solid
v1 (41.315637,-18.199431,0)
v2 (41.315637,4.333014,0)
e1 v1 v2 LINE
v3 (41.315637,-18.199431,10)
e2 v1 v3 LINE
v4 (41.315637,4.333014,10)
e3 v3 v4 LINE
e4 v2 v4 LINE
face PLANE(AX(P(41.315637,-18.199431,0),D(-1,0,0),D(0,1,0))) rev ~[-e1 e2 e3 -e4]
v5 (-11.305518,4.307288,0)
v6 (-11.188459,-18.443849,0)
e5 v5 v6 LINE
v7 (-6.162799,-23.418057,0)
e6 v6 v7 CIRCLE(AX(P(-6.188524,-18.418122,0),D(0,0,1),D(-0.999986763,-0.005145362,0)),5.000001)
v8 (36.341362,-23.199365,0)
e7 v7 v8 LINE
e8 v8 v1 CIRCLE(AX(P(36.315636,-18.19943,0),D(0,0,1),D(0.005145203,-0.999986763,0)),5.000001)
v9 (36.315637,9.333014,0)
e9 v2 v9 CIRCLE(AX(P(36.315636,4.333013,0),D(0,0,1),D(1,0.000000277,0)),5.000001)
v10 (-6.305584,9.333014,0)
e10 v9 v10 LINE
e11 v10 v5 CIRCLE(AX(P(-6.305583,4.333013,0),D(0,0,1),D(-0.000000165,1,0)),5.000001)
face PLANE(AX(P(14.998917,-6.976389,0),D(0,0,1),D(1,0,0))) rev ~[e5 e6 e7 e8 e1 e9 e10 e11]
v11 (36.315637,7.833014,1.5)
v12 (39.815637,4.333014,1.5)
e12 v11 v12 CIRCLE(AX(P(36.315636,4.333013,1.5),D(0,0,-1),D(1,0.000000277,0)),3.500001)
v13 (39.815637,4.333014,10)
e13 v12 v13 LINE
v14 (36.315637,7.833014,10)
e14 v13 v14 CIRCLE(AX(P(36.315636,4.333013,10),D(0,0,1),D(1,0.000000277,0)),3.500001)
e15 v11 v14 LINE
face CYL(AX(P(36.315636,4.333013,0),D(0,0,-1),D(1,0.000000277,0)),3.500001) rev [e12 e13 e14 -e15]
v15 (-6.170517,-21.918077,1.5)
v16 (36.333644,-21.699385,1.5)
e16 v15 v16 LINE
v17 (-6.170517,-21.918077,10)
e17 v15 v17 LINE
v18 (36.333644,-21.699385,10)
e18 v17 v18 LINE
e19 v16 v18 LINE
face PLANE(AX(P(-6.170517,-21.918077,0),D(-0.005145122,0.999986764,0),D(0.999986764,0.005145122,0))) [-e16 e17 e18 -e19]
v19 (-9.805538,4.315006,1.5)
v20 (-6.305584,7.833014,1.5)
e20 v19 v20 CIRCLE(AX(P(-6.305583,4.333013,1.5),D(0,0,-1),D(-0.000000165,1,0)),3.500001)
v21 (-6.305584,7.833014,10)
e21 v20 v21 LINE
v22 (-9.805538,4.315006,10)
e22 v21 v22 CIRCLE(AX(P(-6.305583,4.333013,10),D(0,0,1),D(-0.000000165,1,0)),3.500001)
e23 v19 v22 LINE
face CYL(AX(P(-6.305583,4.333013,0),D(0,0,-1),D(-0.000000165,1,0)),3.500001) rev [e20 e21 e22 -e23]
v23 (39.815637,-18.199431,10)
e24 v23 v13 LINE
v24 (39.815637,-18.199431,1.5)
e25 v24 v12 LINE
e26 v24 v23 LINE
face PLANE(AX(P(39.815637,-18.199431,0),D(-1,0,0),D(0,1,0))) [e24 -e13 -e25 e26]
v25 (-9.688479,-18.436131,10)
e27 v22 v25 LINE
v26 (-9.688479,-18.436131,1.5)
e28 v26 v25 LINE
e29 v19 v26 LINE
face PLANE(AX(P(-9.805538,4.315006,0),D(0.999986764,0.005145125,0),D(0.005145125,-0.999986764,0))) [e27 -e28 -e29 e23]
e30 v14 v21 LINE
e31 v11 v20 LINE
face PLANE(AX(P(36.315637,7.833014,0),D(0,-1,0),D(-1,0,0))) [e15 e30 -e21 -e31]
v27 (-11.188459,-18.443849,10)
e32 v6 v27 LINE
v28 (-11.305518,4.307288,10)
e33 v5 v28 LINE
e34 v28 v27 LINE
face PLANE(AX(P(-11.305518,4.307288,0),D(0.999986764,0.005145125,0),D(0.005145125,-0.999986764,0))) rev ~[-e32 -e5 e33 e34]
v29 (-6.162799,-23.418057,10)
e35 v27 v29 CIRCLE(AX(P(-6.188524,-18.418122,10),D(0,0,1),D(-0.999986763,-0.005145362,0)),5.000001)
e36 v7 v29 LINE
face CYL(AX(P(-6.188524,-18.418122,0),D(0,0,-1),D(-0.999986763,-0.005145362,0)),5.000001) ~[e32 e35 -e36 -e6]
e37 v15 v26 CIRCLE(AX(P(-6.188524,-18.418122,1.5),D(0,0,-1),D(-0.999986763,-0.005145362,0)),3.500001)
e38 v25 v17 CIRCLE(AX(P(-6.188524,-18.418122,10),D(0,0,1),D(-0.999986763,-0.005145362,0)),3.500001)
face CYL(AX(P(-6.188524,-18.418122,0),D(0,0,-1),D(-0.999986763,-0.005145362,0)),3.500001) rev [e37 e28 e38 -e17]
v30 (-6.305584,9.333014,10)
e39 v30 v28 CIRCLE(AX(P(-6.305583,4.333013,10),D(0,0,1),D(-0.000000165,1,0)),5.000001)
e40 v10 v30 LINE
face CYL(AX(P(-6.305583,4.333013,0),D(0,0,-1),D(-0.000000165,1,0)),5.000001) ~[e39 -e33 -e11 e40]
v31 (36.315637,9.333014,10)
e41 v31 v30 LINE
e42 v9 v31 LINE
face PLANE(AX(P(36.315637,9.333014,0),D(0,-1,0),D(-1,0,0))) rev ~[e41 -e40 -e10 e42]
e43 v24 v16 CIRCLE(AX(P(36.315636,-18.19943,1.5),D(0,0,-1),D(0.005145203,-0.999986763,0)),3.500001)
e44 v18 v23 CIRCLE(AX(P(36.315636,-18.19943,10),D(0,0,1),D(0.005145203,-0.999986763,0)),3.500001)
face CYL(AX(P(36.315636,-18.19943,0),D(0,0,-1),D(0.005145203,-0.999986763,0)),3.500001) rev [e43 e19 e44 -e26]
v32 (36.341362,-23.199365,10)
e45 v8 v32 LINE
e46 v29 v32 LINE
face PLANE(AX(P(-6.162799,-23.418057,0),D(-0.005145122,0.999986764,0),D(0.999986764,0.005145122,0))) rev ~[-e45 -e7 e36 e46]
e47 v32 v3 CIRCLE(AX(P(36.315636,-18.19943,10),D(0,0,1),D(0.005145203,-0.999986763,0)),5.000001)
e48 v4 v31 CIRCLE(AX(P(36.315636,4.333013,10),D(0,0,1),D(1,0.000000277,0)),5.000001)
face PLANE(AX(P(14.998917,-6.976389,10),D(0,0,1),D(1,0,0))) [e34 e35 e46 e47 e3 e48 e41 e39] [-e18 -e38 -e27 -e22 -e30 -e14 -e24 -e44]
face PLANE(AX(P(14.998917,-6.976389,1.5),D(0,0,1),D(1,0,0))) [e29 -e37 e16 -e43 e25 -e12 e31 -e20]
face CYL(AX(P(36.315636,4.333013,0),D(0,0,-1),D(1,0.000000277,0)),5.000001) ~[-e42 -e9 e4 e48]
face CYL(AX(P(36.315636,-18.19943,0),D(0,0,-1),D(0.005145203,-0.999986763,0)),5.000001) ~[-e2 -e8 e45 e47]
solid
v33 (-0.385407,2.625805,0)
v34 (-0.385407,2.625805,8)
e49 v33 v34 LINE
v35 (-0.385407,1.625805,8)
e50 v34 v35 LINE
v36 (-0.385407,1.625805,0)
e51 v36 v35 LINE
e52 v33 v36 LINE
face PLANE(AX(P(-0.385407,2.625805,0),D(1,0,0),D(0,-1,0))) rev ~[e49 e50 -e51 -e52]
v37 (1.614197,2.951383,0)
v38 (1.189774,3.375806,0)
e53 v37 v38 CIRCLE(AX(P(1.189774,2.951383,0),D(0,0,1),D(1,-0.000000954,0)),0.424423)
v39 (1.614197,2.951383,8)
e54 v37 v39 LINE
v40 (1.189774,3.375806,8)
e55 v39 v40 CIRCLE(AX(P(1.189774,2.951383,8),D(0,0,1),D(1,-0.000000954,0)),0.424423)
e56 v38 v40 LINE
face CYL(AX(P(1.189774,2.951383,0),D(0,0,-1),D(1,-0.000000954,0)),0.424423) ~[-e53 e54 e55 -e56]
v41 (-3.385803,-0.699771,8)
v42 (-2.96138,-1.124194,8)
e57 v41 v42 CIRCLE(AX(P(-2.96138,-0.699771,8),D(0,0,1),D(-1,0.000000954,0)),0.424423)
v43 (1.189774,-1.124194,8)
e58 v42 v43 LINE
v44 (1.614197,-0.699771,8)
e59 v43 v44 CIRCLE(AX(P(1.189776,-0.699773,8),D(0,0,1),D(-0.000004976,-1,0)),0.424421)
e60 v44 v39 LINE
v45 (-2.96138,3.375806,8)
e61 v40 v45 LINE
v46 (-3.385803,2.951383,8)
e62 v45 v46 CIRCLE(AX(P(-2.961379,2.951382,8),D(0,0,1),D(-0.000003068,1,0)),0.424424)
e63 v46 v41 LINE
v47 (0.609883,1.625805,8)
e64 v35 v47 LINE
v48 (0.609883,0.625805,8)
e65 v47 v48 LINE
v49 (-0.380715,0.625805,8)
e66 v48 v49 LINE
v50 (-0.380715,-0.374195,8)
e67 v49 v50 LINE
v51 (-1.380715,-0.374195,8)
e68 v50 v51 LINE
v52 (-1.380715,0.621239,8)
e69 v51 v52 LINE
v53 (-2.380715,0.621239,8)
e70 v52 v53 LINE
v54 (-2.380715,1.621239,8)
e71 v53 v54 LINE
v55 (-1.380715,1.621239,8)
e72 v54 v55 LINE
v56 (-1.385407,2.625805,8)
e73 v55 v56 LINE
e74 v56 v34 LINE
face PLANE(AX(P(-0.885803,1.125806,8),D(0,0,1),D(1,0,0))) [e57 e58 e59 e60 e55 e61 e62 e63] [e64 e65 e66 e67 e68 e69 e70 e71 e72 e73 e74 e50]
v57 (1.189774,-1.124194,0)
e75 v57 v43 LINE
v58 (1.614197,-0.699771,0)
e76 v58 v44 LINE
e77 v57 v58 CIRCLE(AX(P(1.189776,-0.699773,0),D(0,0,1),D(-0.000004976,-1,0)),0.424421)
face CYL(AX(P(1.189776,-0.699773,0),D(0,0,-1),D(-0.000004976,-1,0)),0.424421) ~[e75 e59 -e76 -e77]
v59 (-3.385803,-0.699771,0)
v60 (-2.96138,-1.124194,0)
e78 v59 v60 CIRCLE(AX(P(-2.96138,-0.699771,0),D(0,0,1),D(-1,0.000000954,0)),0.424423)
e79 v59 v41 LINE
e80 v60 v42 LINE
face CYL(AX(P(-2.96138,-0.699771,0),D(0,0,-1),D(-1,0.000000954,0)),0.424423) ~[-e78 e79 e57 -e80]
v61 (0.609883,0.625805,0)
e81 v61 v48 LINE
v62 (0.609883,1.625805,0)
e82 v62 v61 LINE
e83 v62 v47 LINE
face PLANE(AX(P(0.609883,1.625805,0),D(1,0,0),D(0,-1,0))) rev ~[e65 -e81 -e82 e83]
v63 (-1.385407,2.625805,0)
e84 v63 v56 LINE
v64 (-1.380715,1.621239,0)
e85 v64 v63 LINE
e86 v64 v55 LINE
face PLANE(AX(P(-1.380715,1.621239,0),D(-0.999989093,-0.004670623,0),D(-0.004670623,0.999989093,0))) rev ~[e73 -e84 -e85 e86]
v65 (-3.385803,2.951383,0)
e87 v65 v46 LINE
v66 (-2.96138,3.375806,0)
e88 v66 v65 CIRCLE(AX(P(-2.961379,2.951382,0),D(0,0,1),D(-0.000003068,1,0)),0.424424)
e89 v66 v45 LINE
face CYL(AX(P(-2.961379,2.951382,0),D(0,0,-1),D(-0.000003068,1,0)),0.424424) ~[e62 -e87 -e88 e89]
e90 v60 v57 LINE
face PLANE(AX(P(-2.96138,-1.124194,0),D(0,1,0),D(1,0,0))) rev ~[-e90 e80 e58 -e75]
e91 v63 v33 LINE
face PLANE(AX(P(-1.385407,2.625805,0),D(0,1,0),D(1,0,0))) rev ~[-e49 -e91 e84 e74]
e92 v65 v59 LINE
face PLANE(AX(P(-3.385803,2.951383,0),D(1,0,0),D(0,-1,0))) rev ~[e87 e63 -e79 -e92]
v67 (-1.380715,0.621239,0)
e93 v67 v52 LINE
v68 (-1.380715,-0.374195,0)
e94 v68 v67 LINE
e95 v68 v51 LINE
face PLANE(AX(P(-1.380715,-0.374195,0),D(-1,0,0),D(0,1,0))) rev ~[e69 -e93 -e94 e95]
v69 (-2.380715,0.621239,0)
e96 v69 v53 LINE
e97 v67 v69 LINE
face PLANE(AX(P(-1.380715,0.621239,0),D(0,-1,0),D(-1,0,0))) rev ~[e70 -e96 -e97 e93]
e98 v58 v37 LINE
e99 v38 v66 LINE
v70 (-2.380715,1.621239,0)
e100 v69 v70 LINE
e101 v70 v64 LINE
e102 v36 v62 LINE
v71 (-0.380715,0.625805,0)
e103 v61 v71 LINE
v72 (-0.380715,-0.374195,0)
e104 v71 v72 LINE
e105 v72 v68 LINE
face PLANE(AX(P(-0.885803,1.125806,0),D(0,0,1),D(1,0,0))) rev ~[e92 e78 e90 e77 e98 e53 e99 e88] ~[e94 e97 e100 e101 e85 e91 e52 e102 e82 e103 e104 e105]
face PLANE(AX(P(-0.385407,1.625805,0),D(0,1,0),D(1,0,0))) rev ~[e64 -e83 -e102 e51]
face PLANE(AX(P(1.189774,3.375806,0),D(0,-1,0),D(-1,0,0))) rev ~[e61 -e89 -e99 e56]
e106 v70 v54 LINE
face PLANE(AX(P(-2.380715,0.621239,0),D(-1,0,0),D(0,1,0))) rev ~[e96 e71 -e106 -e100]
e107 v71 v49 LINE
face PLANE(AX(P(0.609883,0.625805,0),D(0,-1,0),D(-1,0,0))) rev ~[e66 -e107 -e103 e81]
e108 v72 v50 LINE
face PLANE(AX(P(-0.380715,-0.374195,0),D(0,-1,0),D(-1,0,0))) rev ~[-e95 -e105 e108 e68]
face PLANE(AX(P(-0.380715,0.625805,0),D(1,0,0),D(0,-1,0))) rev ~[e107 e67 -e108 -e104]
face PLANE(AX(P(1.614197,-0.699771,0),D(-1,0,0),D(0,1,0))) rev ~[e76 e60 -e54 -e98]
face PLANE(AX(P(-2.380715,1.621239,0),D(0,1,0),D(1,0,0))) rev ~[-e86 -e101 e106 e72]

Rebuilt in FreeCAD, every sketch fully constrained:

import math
import FreeCAD as App
import Part
import Sketcher
from FreeCAD import Vector


def faces_at(feature, points):
    """Names of the faces that lie closest to the given points."""
    faces = feature.Shape.Faces
    near = lambda p: min(range(len(faces)), key=lambda i: faces[i].distToShape(Part.Vertex(*p))[0])
    return sorted({f"Face{near(p) + 1}" for p in points})

doc = App.newDocument("Part")
body = doc.addObject("PartDesign::Body", "Body")

# Sketch on XY plane
sketch1 = body.newObject("Sketcher::SketchObject", "Sketch")
sketch1.AttachmentSupport = (doc.getObject("XY_Plane"), [""])
sketch1.MapMode = "FlatFace"
sketch1.addGeometry([
    Part.LineSegment(Vector(1.19, 3.38, 0), Vector(-2.96, 3.38, 0)),  # 0
    Part.ArcOfCircle(Part.Circle(Vector(-2.96, 2.95, 0), Vector(0, 0, 1), 0.42), math.radians(90), math.radians(180)),  # 1
    Part.LineSegment(Vector(-3.39, 2.95, 0), Vector(-3.39, -0.7, 0)),  # 2
    Part.ArcOfCircle(Part.Circle(Vector(-2.96, -0.7, 0), Vector(0, 0, 1), 0.42), math.radians(180), math.radians(270)),  # 3
    Part.LineSegment(Vector(-2.96, -1.12, 0), Vector(1.19, -1.12, 0)),  # 4
    Part.ArcOfCircle(Part.Circle(Vector(1.19, -0.7, 0), Vector(0, 0, 1), 0.42), math.radians(-90), math.radians(0)),  # 5
    Part.LineSegment(Vector(1.61, -0.7, 0), Vector(1.61, 2.95, 0)),  # 6
    Part.ArcOfCircle(Part.Circle(Vector(1.19, 2.95, 0), Vector(0, 0, 1), 0.42), math.radians(0), math.radians(90)),  # 7
    Part.LineSegment(Vector(-2.38, 1.62, 0), Vector(-1.38, 1.62, 0)),  # 8
    Part.LineSegment(Vector(-1.38, 1.62, 0), Vector(-1.39, 2.63, 0)),  # 9
    Part.LineSegment(Vector(-1.39, 2.63, 0), Vector(-0.39, 2.63, 0)),  # 10
    Part.LineSegment(Vector(-0.39, 2.63, 0), Vector(-0.39, 1.63, 0)),  # 11
    Part.LineSegment(Vector(-0.39, 1.63, 0), Vector(0.61, 1.63, 0)),  # 12
    Part.LineSegment(Vector(0.61, 1.63, 0), Vector(0.61, 0.63, 0)),  # 13
    Part.LineSegment(Vector(0.61, 0.63, 0), Vector(-0.38, 0.63, 0)),  # 14
    Part.LineSegment(Vector(-0.38, 0.63, 0), Vector(-0.38, -0.37, 0)),  # 15
    Part.LineSegment(Vector(-0.38, -0.37, 0), Vector(-1.38, -0.37, 0)),  # 16
    Part.LineSegment(Vector(-1.38, -0.37, 0), Vector(-1.38, 0.62, 0)),  # 17
    Part.LineSegment(Vector(-1.38, 0.62, 0), Vector(-2.38, 0.62, 0)),  # 18
    Part.LineSegment(Vector(-2.38, 0.62, 0), Vector(-2.38, 1.62, 0)),  # 19
], False)
sketch1.addConstraint([
    Sketcher.Constraint("Coincident", 0, 2, 1, 1),
    Sketcher.Constraint("Coincident", 1, 2, 2, 1),
    Sketcher.Constraint("Tangent", 2, 2, 3, 1),
    Sketcher.Constraint("Tangent", 3, 2, 4, 1),
    Sketcher.Constraint("Coincident", 4, 2, 5, 1),
    Sketcher.Constraint("Coincident", 5, 2, 6, 1),
    Sketcher.Constraint("Tangent", 6, 2, 7, 1),
    Sketcher.Constraint("Tangent", 7, 2, 0, 1),
    Sketcher.Constraint("Coincident", 8, 2, 9, 1),
    Sketcher.Constraint("Coincident", 9, 2, 10, 1),
    Sketcher.Constraint("Coincident", 10, 2, 11, 1),
    Sketcher.Constraint("Coincident", 11, 2, 12, 1),
    Sketcher.Constraint("Coincident", 12, 2, 13, 1),
    Sketcher.Constraint("Coincident", 13, 2, 14, 1),
    Sketcher.Constraint("Coincident", 14, 2, 15, 1),
    Sketcher.Constraint("Coincident", 15, 2, 16, 1),
    Sketcher.Constraint("Coincident", 16, 2, 17, 1),
    Sketcher.Constraint("Coincident", 17, 2, 18, 1),
    Sketcher.Constraint("Coincident", 18, 2, 19, 1),
    Sketcher.Constraint("Coincident", 19, 2, 8, 1),
    Sketcher.Constraint("Horizontal", 0),
    Sketcher.Constraint("Vertical", 2),
    Sketcher.Constraint("Horizontal", 4),
    Sketcher.Constraint("Vertical", 6),
    Sketcher.Constraint("Horizontal", 8),
    Sketcher.Constraint("Horizontal", 10),
    Sketcher.Constraint("Vertical", 11),
    Sketcher.Constraint("Horizontal", 12),
    Sketcher.Constraint("Vertical", 13),
    Sketcher.Constraint("Horizontal", 14),
    Sketcher.Constraint("Vertical", 15),
    Sketcher.Constraint("Horizontal", 16),
    Sketcher.Constraint("Vertical", 17),
    Sketcher.Constraint("Horizontal", 18),
    Sketcher.Constraint("Vertical", 19),
    Sketcher.Constraint("Equal", 1, 3),
    Sketcher.Constraint("Equal", 3, 5),
    Sketcher.Constraint("Equal", 5, 7),
    Sketcher.Constraint("Horizontal", 7, 3, 1, 2),
    Sketcher.Constraint("Horizontal", 2, 2, 5, 2),
    Sketcher.Constraint("Vertical", 3, 3, 0, 2),
    Sketcher.Constraint("Vertical", 7, 3, 4, 2),
    Sketcher.Constraint("Vertical", 8, 2, 16, 2),
    Sketcher.Constraint("Equal", 8, 10),
    Sketcher.Constraint("Equal", 10, 16),
    Sketcher.Constraint("Equal", 18, 11),
    Sketcher.Constraint("Equal", 11, 13),
    Sketcher.Constraint("Equal", 13, 15),
    Sketcher.Constraint("Equal", 15, 19),
    Sketcher.Constraint("DistanceX", 8, 1, 8, 2, 1.0),
    Sketcher.Constraint("Radius", 5, 0.424421),
    Sketcher.Constraint("DistanceY", 9, 2, 0, 2, 0.750001),
    Sketcher.Constraint("DistanceY", 4, 2, 13, 2, 1.749999),
    Sketcher.Constraint("DistanceX", 12, 1, 12, 2, 0.99529),
    Sketcher.Constraint("DistanceX", 0, 2, 0, 1, 4.151154),
    Sketcher.Constraint("DistanceX", 14, 2, 14, 1, 0.990598),
    Sketcher.Constraint("DistanceY", 17, 1, 17, 2, 0.995434),
    Sketcher.Constraint("DistanceX", 1, 3, -1, 1, 2.961379),
    Sketcher.Constraint("DistanceY", -1, 1, 1, 3, 2.951382),
    Sketcher.Constraint("DistanceX", 8, 2, 7, 3, 2.570489),
])
pad1 = body.newObject("PartDesign::Pad", "Pad")
pad1.Profile = sketch1
pad1.Length = 8
body2 = doc.addObject("PartDesign::Body", "Body001")

# Sketch on XY plane
sketch2 = body2.newObject("Sketcher::SketchObject", "Sketch001")
sketch2.AttachmentSupport = (doc.getObject("XY_Plane001"), [""])
sketch2.MapMode = "FlatFace"
sketch2.addGeometry([
    Part.ArcOfCircle(Part.Circle(Vector(-6, -18, 0), Vector(0, 0, 1), 5), math.radians(-180), math.radians(-90)),  # 0
    Part.LineSegment(Vector(-6, -23, 0), Vector(36, -23, 0)),  # 1
    Part.ArcOfCircle(Part.Circle(Vector(36, -18, 0), Vector(0, 0, 1), 5), math.radians(-90), math.radians(0)),  # 2
    Part.LineSegment(Vector(41, -18, 0), Vector(41, 4, 0)),  # 3
    Part.ArcOfCircle(Part.Circle(Vector(36, 4, 0), Vector(0, 0, 1), 5), math.radians(0), math.radians(90)),  # 4
    Part.LineSegment(Vector(36, 9, 0), Vector(-6, 9, 0)),  # 5
    Part.ArcOfCircle(Part.Circle(Vector(-6, 4, 0), Vector(0, 0, 1), 5), math.radians(90), math.radians(180)),  # 6
    Part.LineSegment(Vector(-11, 4, 0), Vector(-11, -18, 0)),  # 7
], False)
sketch2.addConstraint([
    Sketcher.Constraint("Tangent", 0, 2, 1, 1),
    Sketcher.Constraint("Tangent", 1, 2, 2, 1),
    Sketcher.Constraint("Tangent", 2, 2, 3, 1),
    Sketcher.Constraint("Tangent", 3, 2, 4, 1),
    Sketcher.Constraint("Tangent", 4, 2, 5, 1),
    Sketcher.Constraint("Tangent", 5, 2, 6, 1),
    Sketcher.Constraint("Tangent", 6, 2, 7, 1),
    Sketcher.Constraint("Tangent", 7, 2, 0, 1),
    Sketcher.Constraint("Vertical", 3),
    Sketcher.Constraint("Horizontal", 5),
    Sketcher.Constraint("Equal", 0, 2),
    Sketcher.Constraint("Equal", 2, 4),
    Sketcher.Constraint("Equal", 4, 6),
    Sketcher.Constraint("Perpendicular", 1, 7),
    Sketcher.Constraint("Radius", 0, 5.000001),
    Sketcher.Constraint("DistanceX", 5, 2, 5, 1, 42.621221),
    Sketcher.Constraint("DistanceX", 0, 2, -1, 1, 6.162799),
    Sketcher.Constraint("Distance", 7, 22.751438),
    Sketcher.Constraint("DistanceY", 3, 1, 3, 2, 22.532445),
    Sketcher.Constraint("DistanceY", 2, 3, -1, 1, 18.19943),
])
pad2 = body2.newObject("PartDesign::Pad", "Pad001")
pad2.Profile = sketch2
pad2.Length = 10
doc.recompute()

thickness = body2.newObject("PartDesign::Thickness", "Thickness")
thickness.Base = (pad2, faces_at(pad2, [(15.005, -7.043, 10)]))
thickness.Value = 1.5
thickness.Reversed = True
thickness.Join = "Arc"

doc.recompute()
